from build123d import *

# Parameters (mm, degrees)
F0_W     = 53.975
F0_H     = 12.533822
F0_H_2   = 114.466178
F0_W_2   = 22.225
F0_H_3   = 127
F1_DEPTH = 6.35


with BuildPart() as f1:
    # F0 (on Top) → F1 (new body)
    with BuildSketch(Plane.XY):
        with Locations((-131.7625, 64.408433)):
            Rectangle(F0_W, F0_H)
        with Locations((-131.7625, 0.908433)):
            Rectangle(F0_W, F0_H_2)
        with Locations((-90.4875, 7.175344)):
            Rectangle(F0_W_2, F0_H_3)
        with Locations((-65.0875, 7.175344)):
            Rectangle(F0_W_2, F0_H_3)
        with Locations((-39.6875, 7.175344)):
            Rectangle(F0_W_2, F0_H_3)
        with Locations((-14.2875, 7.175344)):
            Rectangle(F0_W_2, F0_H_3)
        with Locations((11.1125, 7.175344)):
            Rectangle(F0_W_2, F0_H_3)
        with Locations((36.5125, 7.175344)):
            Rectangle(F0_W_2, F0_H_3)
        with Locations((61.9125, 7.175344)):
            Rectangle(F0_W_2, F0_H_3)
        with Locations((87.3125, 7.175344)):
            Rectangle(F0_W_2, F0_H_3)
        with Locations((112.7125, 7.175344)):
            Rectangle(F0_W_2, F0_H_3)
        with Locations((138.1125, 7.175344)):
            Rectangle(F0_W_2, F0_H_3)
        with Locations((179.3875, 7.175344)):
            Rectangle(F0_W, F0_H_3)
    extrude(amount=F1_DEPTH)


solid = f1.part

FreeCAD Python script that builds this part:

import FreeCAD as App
import Part
import Sketcher

V = App.Vector
Q = App.Units.Quantity

doc = App.newDocument("Part")
body = doc.addObject("PartDesign::Body", "Body")
body.AllowCompound = True

# Sketch on XY plane
sketch1 = body.newObject("Sketcher::SketchObject", "Sketch")
sketch1.AttachmentSupport = (doc.getObject("XY_Plane"), [""])
sketch1.MapMode = "FlatFace"
sketch1.addGeometry(Part.LineSegment(V(-158.75, 70.675344, 0), V(-158.75, -56.324656, 0)), False)
sketch1.addGeometry(Part.LineSegment(V(-158.75, -56.324656, 0), V(-104.775, -56.324656, 0)), False)
sketch1.addGeometry(Part.LineSegment(V(-104.775, -56.324656, 0), V(-104.775, 70.675344, 0)), False)
sketch1.addGeometry(Part.LineSegment(V(-104.775, 70.675344, 0), V(-158.75, 70.675344, 0)), False)
sketch1.addGeometry(Part.LineSegment(V(-101.6, 70.675344, 0), V(-101.6, -56.324656, 0)), False)
sketch1.addGeometry(Part.LineSegment(V(-101.6, -56.324656, 0), V(-79.375, -56.324656, 0)), False)
sketch1.addGeometry(Part.LineSegment(V(-79.375, -56.324656, 0), V(-79.375, 70.675344, 0)), False)
sketch1.addGeometry(Part.LineSegment(V(-79.375, 70.675344, 0), V(-101.6, 70.675344, 0)), False)
sketch1.addGeometry(Part.LineSegment(V(-76.2, 70.675344, 0), V(-76.2, -56.324656, 0)), False)
sketch1.addGeometry(Part.LineSegment(V(-76.2, -56.324656, 0), V(-53.975, -56.324656, 0)), False)
sketch1.addGeometry(Part.LineSegment(V(-53.975, -56.324656, 0), V(-53.975, 70.675344, 0)), False)
sketch1.addGeometry(Part.LineSegment(V(-53.975, 70.675344, 0), V(-76.2, 70.675344, 0)), False)
sketch1.addGeometry(Part.LineSegment(V(-50.8, 70.675344, 0), V(-50.8, -56.324656, 0)), False)
sketch1.addGeometry(Part.LineSegment(V(-50.8, -56.324656, 0), V(-28.575, -56.324656, 0)), False)
sketch1.addGeometry(Part.LineSegment(V(-28.575, -56.324656, 0), V(-28.575, 70.675344, 0)), False)
sketch1.addGeometry(Part.LineSegment(V(-28.575, 70.675344, 0), V(-50.8, 70.675344, 0)), False)
sketch1.addGeometry(Part.LineSegment(V(-25.4, 70.675344, 0), V(-25.4, -56.324656, 0)), False)
sketch1.addGeometry(Part.LineSegment(V(-25.4, -56.324656, 0), V(-3.175, -56.324656, 0)), False)
sketch1.addGeometry(Part.LineSegment(V(-3.175, -56.324656, 0), V(-3.175, 70.675344, 0)), False)
sketch1.addGeometry(Part.LineSegment(V(-3.175, 70.675344, 0), V(-25.4, 70.675344, 0)), False)
sketch1.addGeometry(Part.LineSegment(V(0, 70.675344, 0), V(0, -56.324656, 0)), False)
sketch1.addGeometry(Part.LineSegment(V(0, -56.324656, 0), V(22.225, -56.324656, 0)), False)
sketch1.addGeometry(Part.LineSegment(V(22.225, -56.324656, 0), V(22.225, 70.675344, 0)), False)
sketch1.addGeometry(Part.LineSegment(V(22.225, 70.675344, 0), V(0, 70.675344, 0)), False)
sketch1.addGeometry(Part.LineSegment(V(25.4, 70.675344, 0), V(25.4, -56.324656, 0)), False)
sketch1.addGeometry(Part.LineSegment(V(25.4, -56.324656, 0), V(47.625, -56.324656, 0)), False)
sketch1.addGeometry(Part.LineSegment(V(47.625, -56.324656, 0), V(47.625, 70.675344, 0)), False)
sketch1.addGeometry(Part.LineSegment(V(47.625, 70.675344, 0), V(25.4, 70.675344, 0)), False)
sketch1.addGeometry(Part.LineSegment(V(50.8, 70.675344, 0), V(50.8, -56.324656, 0)), False)
sketch1.addGeometry(Part.LineSegment(V(50.8, -56.324656, 0), V(73.025, -56.324656, 0)), False)
sketch1.addGeometry(Part.LineSegment(V(73.025, -56.324656, 0), V(73.025, 70.675344, 0)), False)
sketch1.addGeometry(Part.LineSegment(V(73.025, 70.675344, 0), V(50.8, 70.675344, 0)), False)
sketch1.addGeometry(Part.LineSegment(V(76.2, 70.675344, 0), V(76.2, -56.324656, 0)), False)
sketch1.addGeometry(Part.LineSegment(V(76.2, -56.324656, 0), V(98.425, -56.324656, 0)), False)
sketch1.addGeometry(Part.LineSegment(V(98.425, -56.324656, 0), V(98.425, 70.675344, 0)), False)
sketch1.addGeometry(Part.LineSegment(V(98.425, 70.675344, 0), V(76.2, 70.675344, 0)), False)
sketch1.addGeometry(Part.LineSegment(V(101.6, 70.675344, 0), V(101.6, -56.324656, 0)), False)
sketch1.addGeometry(Part.LineSegment(V(101.6, -56.324656, 0), V(123.825, -56.324656, 0)), False)
sketch1.addGeometry(Part.LineSegment(V(123.825, -56.324656, 0), V(123.825, 70.675344, 0)), False)
sketch1.addGeometry(Part.LineSegment(V(123.825, 70.675344, 0), V(101.6, 70.675344, 0)), False)
sketch1.addGeometry(Part.LineSegment(V(127, 70.675344, 0), V(127, -56.324656, 0)), False)
sketch1.addGeometry(Part.LineSegment(V(127, -56.324656, 0), V(149.225, -56.324656, 0)), False)
sketch1.addGeometry(Part.LineSegment(V(149.225, -56.324656, 0), V(149.225, 70.675344, 0)), False)
sketch1.addGeometry(Part.LineSegment(V(149.225, 70.675344, 0), V(127, 70.675344, 0)), False)
sketch1.addGeometry(Part.LineSegment(V(152.4, 70.675344, 0), V(152.4, -56.324656, 0)), False)
sketch1.addGeometry(Part.LineSegment(V(152.4, -56.324656, 0), V(206.375, -56.324656, 0)), False)
sketch1.addGeometry(Part.LineSegment(V(206.375, -56.324656, 0), V(206.375, 70.675344, 0)), False)
sketch1.addGeometry(Part.LineSegment(V(206.375, 70.675344, 0), V(152.4, 70.675344, 0)), False)
sketch1.addConstraint(Sketcher.Constraint("Coincident", 0, 2, 1, 1))
sketch1.addConstraint(Sketcher.Constraint("Coincident", 1, 2, 2, 1))
sketch1.addConstraint(Sketcher.Constraint("Coincident", 2, 2, 3, 1))
sketch1.addConstraint(Sketcher.Constraint("Coincident", 3, 2, 0, 1))
sketch1.addConstraint(Sketcher.Constraint("Coincident", 4, 2, 5, 1))
sketch1.addConstraint(Sketcher.Constraint("Coincident", 5, 2, 6, 1))
sketch1.addConstraint(Sketcher.Constraint("Coincident", 6, 2, 7, 1))
sketch1.addConstraint(Sketcher.Constraint("Coincident", 7, 2, 4, 1))
sketch1.addConstraint(Sketcher.Constraint("Coincident", 8, 2, 9, 1))
sketch1.addConstraint(Sketcher.Constraint("Coincident", 9, 2, 10, 1))
sketch1.addConstraint(Sketcher.Constraint("Coincident", 10, 2, 11, 1))
sketch1.addConstraint(Sketcher.Constraint("Coincident", 11, 2, 8, 1))
sketch1.addConstraint(Sketcher.Constraint("Coincident", 12, 2, 13, 1))
sketch1.addConstraint(Sketcher.Constraint("Coincident", 13, 2, 14, 1))
sketch1.addConstraint(Sketcher.Constraint("Coincident", 14, 2, 15, 1))
sketch1.addConstraint(Sketcher.Constraint("Coincident", 15, 2, 12, 1))
sketch1.addConstraint(Sketcher.Constraint("Coincident", 16, 2, 17, 1))
sketch1.addConstraint(Sketcher.Constraint("Coincident", 17, 2, 18, 1))
sketch1.addConstraint(Sketcher.Constraint("Coincident", 18, 2, 19, 1))
sketch1.addConstraint(Sketcher.Constraint("Coincident", 19, 2, 16, 1))
sketch1.addConstraint(Sketcher.Constraint("Coincident", 20, 2, 21, 1))
sketch1.addConstraint(Sketcher.Constraint("Coincident", 21, 2, 22, 1))
sketch1.addConstraint(Sketcher.Constraint("Coincident", 22, 2, 23, 1))
sketch1.addConstraint(Sketcher.Constraint("Coincident", 23, 2, 20, 1))
sketch1.addConstraint(Sketcher.Constraint("Coincident", 24, 2, 25, 1))
sketch1.addConstraint(Sketcher.Constraint("Coincident", 25, 2, 26, 1))
sketch1.addConstraint(Sketcher.Constraint("Coincident", 26, 2, 27, 1))
sketch1.addConstraint(Sketcher.Constraint("Coincident", 27, 2, 24, 1))
sketch1.addConstraint(Sketcher.Constraint("Coincident", 28, 2, 29, 1))
sketch1.addConstraint(Sketcher.Constraint("Coincident", 29, 2, 30, 1))
sketch1.addConstraint(Sketcher.Constraint("Coincident", 30, 2, 31, 1))
sketch1.addConstraint(Sketcher.Constraint("Coincident", 31, 2, 28, 1))
sketch1.addConstraint(Sketcher.Constraint("Coincident", 32, 2, 33, 1))
sketch1.addConstraint(Sketcher.Constraint("Coincident", 33, 2, 34, 1))
sketch1.addConstraint(Sketcher.Constraint("Coincident", 34, 2, 35, 1))
sketch1.addConstraint(Sketcher.Constraint("Coincident", 35, 2, 32, 1))
sketch1.addConstraint(Sketcher.Constraint("Coincident", 36, 2, 37, 1))
sketch1.addConstraint(Sketcher.Constraint("Coincident", 37, 2, 38, 1))
sketch1.addConstraint(Sketcher.Constraint("Coincident", 38, 2, 39, 1))
sketch1.addConstraint(Sketcher.Constraint("Coincident", 39, 2, 36, 1))
sketch1.addConstraint(Sketcher.Constraint("Coincident", 40, 2, 41, 1))
sketch1.addConstraint(Sketcher.Constraint("Coincident", 41, 2, 42, 1))
sketch1.addConstraint(Sketcher.Constraint("Coincident", 42, 2, 43, 1))
sketch1.addConstraint(Sketcher.Constraint("Coincident", 43, 2, 40, 1))
sketch1.addConstraint(Sketcher.Constraint("Coincident", 44, 2, 45, 1))
sketch1.addConstraint(Sketcher.Constraint("Coincident", 45, 2, 46, 1))
sketch1.addConstraint(Sketcher.Constraint("Coincident", 46, 2, 47, 1))
sketch1.addConstraint(Sketcher.Constraint("Coincident", 47, 2, 44, 1))
sketch1.addConstraint(Sketcher.Constraint("Vertical", 0))
sketch1.addConstraint(Sketcher.Constraint("Horizontal", 1))
sketch1.addConstraint(Sketcher.Constraint("Vertical", 2))
sketch1.addConstraint(Sketcher.Constraint("Horizontal", 3))
sketch1.addConstraint(Sketcher.Constraint("Vertical", 4))
sketch1.addConstraint(Sketcher.Constraint("Horizontal", 5))
sketch1.addConstraint(Sketcher.Constraint("Vertical", 6))
sketch1.addConstraint(Sketcher.Constraint("Horizontal", 7))
sketch1.addConstraint(Sketcher.Constraint("Vertical", 8))
sketch1.addConstraint(Sketcher.Constraint("Horizontal", 9))
sketch1.addConstraint(Sketcher.Constraint("Vertical", 10))
sketch1.addConstraint(Sketcher.Constraint("Horizontal", 11))
sketch1.addConstraint(Sketcher.Constraint("Vertical", 12))
sketch1.addConstraint(Sketcher.Constraint("Horizontal", 13))
sketch1.addConstraint(Sketcher.Constraint("Vertical", 14))
sketch1.addConstraint(Sketcher.Constraint("Horizontal", 15))
sketch1.addConstraint(Sketcher.Constraint("Vertical", 16))
sketch1.addConstraint(Sketcher.Constraint("Horizontal", 17))
sketch1.addConstraint(Sketcher.Constraint("Vertical", 18))
sketch1.addConstraint(Sketcher.Constraint("Horizontal", 19))
sketch1.addConstraint(Sketcher.Constraint("Vertical", 20))
sketch1.addConstraint(Sketcher.Constraint("Horizontal", 21))
sketch1.addConstraint(Sketcher.Constraint("Vertical", 22))
sketch1.addConstraint(Sketcher.Constraint("Horizontal", 23))
sketch1.addConstraint(Sketcher.Constraint("Vertical", 24))
sketch1.addConstraint(Sketcher.Constraint("Horizontal", 25))
sketch1.addConstraint(Sketcher.Constraint("Vertical", 26))
sketch1.addConstraint(Sketcher.Constraint("Horizontal", 27))
sketch1.addConstraint(Sketcher.Constraint("Vertical", 28))
sketch1.addConstraint(Sketcher.Constraint("Horizontal", 29))
sketch1.addConstraint(Sketcher.Constraint("Vertical", 30))
sketch1.addConstraint(Sketcher.Constraint("Horizontal", 31))
sketch1.addConstraint(Sketcher.Constraint("Vertical", 32))
sketch1.addConstraint(Sketcher.Constraint("Horizontal", 33))
sketch1.addConstraint(Sketcher.Constraint("Vertical", 34))
sketch1.addConstraint(Sketcher.Constraint("Horizontal", 35))
sketch1.addConstraint(Sketcher.Constraint("Vertical", 36))
sketch1.addConstraint(Sketcher.Constraint("Horizontal", 37))
sketch1.addConstraint(Sketcher.Constraint("Vertical", 38))
sketch1.addConstraint(Sketcher.Constraint("Horizontal", 39))
sketch1.addConstraint(Sketcher.Constraint("Vertical", 40))
sketch1.addConstraint(Sketcher.Constraint("Horizontal", 41))
sketch1.addConstraint(Sketcher.Constraint("Vertical", 42))
sketch1.addConstraint(Sketcher.Constraint("Horizontal", 43))
sketch1.addConstraint(Sketcher.Constraint("Vertical", 44))
sketch1.addConstraint(Sketcher.Constraint("Horizontal", 45))
sketch1.addConstraint(Sketcher.Constraint("Vertical", 46))
sketch1.addConstraint(Sketcher.Constraint("Horizontal", 47))
sketch1.addConstraint(Sketcher.Constraint("Symmetric", 16, 2, 24, 2, -2))
sketch1.addConstraint(Sketcher.Constraint("Symmetric", 12, 2, 28, 2, -2))
sketch1.addConstraint(Sketcher.Constraint("Symmetric", 8, 2, 32, 2, -2))
sketch1.addConstraint(Sketcher.Constraint("Symmetric", 4, 2, 36, 2, -2))
sketch1.addConstraint(Sketcher.Constraint("PointOnObject", 20, 2, -2))
sketch1.addConstraint(Sketcher.Constraint("Horizontal", 1, 2, 4, 2))
sketch1.addConstraint(Sketcher.Constraint("Horizontal", 3, 2, 6, 2))
sketch1.addConstraint(Sketcher.Constraint("Horizontal", 5, 2, 8, 2))
sketch1.addConstraint(Sketcher.Constraint("Horizontal", 7, 2, 10, 2))
sketch1.addConstraint(Sketcher.Constraint("Horizontal", 9, 2, 12, 2))
sketch1.addConstraint(Sketcher.Constraint("Horizontal", 11, 2, 14, 2))
sketch1.addConstraint(Sketcher.Constraint("Horizontal", 13, 2, 16, 2))
sketch1.addConstraint(Sketcher.Constraint("Horizontal", 15, 2, 18, 2))
sketch1.addConstraint(Sketcher.Constraint("Horizontal", 17, 2, 20, 2))
sketch1.addConstraint(Sketcher.Constraint("Horizontal", 19, 2, 22, 2))
sketch1.addConstraint(Sketcher.Constraint("Horizontal", 23, 2, 26, 2))
sketch1.addConstraint(Sketcher.Constraint("Horizontal", 27, 2, 30, 2))
sketch1.addConstraint(Sketcher.Constraint("Horizontal", 31, 2, 34, 2))
sketch1.addConstraint(Sketcher.Constraint("Horizontal", 35, 2, 38, 2))
sketch1.addConstraint(Sketcher.Constraint("Horizontal", 37, 2, 40, 2))
sketch1.addConstraint(Sketcher.Constraint("Horizontal", 39, 2, 42, 2))
sketch1.addConstraint(Sketcher.Constraint("Horizontal", 41, 2, 44, 2))
sketch1.addConstraint(Sketcher.Constraint("Horizontal", 43, 2, 46, 2))
sketch1.addConstraint(Sketcher.Constraint("Equal", 7, 9))
sketch1.addConstraint(Sketcher.Constraint("Equal", 11, 13))
sketch1.addConstraint(Sketcher.Constraint("Equal", 15, 17))
sketch1.addConstraint(Sketcher.Constraint("Equal", 19, 21))
sketch1.addConstraint(Sketcher.Constraint("Equal", 23, 25))
sketch1.addConstraint(Sketcher.Constraint("Equal", 27, 29))
sketch1.addConstraint(Sketcher.Constraint("Equal", 31, 33))
sketch1.addConstraint(Sketcher.Constraint("Equal", 35, 37))
sketch1.addConstraint(Sketcher.Constraint("Equal", 39, 41))
sketch1.addConstraint(Sketcher.Constraint("Equal", 3, 45))
sketch1.addConstraint(Sketcher.Constraint("DistanceY", 0, 2, 0, 1, Q("5 in")))
sketch1.addConstraint(Sketcher.Constraint("DistanceX", 4, 2, -1, 1, Q("4 in")))
sketch1.addConstraint(Sketcher.Constraint("DistanceX", 8, 2, -1, 1, Q("3 in")))
sketch1.addConstraint(Sketcher.Constraint("DistanceX", 12, 2, -1, 1, Q("2 in")))
sketch1.addConstraint(Sketcher.Constraint("DistanceX", 16, 2, -1, 1, Q("1 in")))
sketch1.addConstraint(Sketcher.Constraint("DistanceX", -1, 1, 40, 2, Q("5 in")))
sketch1.addConstraint(Sketcher.Constraint("DistanceX", -1, 1, 44, 2, Q("6 in")))
sketch1.addConstraint(Sketcher.Constraint("DistanceX", 1, 2, 5, 2, Q("1 in")))
sketch1.addConstraint(Sketcher.Constraint("DistanceX", 1, 1, 1, 2, Q("2.125 in")))
sketch1.addConstraint(Sketcher.Constraint("DistanceX", 5, 1, 5, 2, Q("0.875 in")))
sketch1.addConstraint(Sketcher.Constraint("DistanceY", 0, 2, -1, 1, 56.324656))
pad1 = body.newObject("PartDesign::Pad", "Pad")
pad1.Profile = sketch1
pad1.Length = Q("0.25 in")

doc.recompute()
